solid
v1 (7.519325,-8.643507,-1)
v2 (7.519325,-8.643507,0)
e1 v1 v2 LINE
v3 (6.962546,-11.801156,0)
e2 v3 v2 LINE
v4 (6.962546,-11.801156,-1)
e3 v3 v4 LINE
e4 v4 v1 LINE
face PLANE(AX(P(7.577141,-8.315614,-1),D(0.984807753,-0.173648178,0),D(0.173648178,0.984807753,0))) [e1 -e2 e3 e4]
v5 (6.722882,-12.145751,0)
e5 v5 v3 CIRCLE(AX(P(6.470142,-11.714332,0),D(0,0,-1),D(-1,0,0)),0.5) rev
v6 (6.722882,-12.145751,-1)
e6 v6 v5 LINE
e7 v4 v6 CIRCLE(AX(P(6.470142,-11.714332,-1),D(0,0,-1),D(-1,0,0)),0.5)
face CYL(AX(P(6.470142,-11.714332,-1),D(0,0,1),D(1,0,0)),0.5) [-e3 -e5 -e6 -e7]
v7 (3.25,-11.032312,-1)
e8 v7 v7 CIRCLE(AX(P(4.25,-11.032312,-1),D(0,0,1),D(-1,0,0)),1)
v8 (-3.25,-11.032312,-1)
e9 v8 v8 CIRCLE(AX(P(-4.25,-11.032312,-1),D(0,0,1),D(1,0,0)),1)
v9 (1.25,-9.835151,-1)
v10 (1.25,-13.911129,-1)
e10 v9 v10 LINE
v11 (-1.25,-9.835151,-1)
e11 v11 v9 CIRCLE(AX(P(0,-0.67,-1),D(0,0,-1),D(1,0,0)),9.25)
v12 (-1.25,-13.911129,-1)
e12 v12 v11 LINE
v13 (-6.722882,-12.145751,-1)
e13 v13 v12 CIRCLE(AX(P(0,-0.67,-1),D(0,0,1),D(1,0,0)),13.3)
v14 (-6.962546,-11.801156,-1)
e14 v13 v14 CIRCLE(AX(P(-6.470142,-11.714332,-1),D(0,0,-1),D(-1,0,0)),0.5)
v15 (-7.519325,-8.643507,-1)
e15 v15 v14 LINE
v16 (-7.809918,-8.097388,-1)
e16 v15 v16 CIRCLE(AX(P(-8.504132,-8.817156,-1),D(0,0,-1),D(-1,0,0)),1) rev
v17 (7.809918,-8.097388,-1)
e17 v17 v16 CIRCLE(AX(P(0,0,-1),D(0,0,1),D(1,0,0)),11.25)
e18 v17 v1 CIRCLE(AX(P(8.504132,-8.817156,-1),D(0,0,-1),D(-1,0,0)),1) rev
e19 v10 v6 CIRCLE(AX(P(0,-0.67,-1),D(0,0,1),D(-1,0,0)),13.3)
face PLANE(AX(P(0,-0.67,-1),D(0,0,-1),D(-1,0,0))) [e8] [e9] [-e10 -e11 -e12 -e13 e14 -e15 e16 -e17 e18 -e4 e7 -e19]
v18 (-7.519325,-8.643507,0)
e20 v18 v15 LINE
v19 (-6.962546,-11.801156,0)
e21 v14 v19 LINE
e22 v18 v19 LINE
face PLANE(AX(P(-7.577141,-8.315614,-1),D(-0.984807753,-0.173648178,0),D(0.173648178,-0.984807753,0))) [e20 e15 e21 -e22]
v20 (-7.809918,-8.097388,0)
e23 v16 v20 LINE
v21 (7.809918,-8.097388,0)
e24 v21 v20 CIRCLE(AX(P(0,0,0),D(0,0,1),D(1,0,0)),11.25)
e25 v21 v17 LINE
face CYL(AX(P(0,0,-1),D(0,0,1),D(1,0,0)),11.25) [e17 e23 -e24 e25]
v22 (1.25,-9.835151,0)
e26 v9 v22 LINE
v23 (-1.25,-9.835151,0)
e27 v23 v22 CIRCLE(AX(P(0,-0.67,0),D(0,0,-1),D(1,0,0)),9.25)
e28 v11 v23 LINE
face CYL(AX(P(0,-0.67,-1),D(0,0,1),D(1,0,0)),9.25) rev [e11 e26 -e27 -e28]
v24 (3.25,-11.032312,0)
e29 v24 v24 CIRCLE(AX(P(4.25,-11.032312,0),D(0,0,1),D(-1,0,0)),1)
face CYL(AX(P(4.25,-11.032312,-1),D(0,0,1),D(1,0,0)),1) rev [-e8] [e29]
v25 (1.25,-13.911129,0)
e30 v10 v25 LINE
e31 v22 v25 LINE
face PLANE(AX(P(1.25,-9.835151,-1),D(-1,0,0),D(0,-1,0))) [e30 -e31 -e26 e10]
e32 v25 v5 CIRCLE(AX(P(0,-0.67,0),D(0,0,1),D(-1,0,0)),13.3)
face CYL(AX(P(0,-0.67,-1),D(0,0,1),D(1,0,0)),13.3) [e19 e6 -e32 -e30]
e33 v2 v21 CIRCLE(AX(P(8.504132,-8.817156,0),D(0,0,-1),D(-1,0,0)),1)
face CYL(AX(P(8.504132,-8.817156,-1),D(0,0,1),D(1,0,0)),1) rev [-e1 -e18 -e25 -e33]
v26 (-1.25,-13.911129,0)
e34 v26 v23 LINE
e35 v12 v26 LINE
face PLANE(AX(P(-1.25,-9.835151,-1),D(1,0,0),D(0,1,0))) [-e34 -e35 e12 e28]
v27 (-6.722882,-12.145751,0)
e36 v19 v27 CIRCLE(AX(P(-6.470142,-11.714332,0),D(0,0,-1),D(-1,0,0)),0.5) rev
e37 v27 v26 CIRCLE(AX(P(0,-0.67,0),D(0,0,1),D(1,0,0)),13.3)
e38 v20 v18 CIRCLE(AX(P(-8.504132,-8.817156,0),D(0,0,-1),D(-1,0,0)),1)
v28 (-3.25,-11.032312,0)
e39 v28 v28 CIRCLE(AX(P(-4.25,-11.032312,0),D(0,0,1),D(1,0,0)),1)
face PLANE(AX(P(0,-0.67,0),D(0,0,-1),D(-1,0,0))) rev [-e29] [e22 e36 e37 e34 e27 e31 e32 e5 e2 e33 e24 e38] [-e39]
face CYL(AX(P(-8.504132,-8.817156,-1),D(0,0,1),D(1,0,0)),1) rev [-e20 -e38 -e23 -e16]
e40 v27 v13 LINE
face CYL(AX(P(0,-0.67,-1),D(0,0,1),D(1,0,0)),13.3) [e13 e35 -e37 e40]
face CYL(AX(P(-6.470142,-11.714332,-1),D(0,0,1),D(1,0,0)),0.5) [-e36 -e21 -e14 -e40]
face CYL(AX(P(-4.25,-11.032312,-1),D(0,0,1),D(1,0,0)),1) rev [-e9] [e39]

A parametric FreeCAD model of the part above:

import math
import FreeCAD as App
import Part
import Sketcher
from FreeCAD import Vector
Q = App.Units.Quantity


def edges_at(feature, points):
    """Names of the edges that pass closest to the given points."""
    edges = feature.Shape.Edges
    near = lambda p: min(range(len(edges)), key=lambda i: edges[i].distToShape(Part.Vertex(*p))[0])
    return sorted({f"Edge{near(p) + 1}" for p in points})

doc = App.newDocument("Part")
params = doc.addObject("Spreadsheet::Sheet", "Params")
for row, (alias, value) in enumerate([
    ("sketch1_diameter", "2 mm"),
    ("sketch1_radius", "13.3 mm"),
    ("sketch1_radius2", "9.25 mm"),
    ("sketch1_radius3", "11.25 mm"),
    ("pad1_length", "1 mm"),
    ("fillet_radius", "0.5 mm"),
    ("fillet2_radius", "1 mm"),
], start=1):
    params.set(f"A{row}", alias)
    params.set(f"B{row}", "=" + value)
    params.setAlias(f"B{row}", alias)

body = doc.addObject("PartDesign::Body", "Body")

# Sketch on XY plane
sketch1 = body.newObject("Sketcher::SketchObject", "Sketch")
sketch1.AttachmentSupport = (doc.getObject("XY_Plane"), [""])
sketch1.MapMode = "FlatFace"
sketch1.addGeometry(Part.LineSegment(Vector(-1.2, -13.9, 0), Vector(-1.2, -9.8, 0)), False)
sketch1.addGeometry(Part.ArcOfCircle(Part.Circle(Vector(0, -0.7, 0), Vector(0, 0, 1), 9.2), math.radians(-82), math.radians(262)), False)
sketch1.addGeometry(Part.LineSegment(Vector(1.2, -9.8, 0), Vector(1.2, -13.9, 0)), False)
sketch1.addGeometry(Part.ArcOfCircle(Part.Circle(Vector(0, -0.7, 0), Vector(0, 0, 1), 13.3), math.radians(-85), math.radians(-59)), False)
sketch1.addGeometry(Part.LineSegment(Vector(6.9, -12, 0), Vector(7.6, -8.3, 0)), False)
sketch1.addGeometry(Part.ArcOfCircle(Part.Circle(Vector(0, 0, 0), Vector(0, 0, 1), 11.2), math.radians(-48), math.radians(228)), False)
sketch1.addGeometry(Part.LineSegment(Vector(-7.6, -8.3, 0), Vector(-6.9, -12, 0)), False)
sketch1.addGeometry(Part.ArcOfCircle(Part.Circle(Vector(0, -0.7, 0), Vector(0, 0, 1), 13.3), math.radians(-121), math.radians(-95)), False)
sketch1.addGeometry(Part.Circle(Vector(4.2, -11, 0), Vector(0, 0, 1), 1), False)
sketch1.addGeometry(Part.Circle(Vector(-4.2, -11, 0), Vector(0, 0, 1), 1), False)
sketch1.addConstraint(Sketcher.Constraint("Coincident", 0, 2, 1, 2))
sketch1.addConstraint(Sketcher.Constraint("Coincident", 1, 1, 2, 1))
sketch1.addConstraint(Sketcher.Constraint("Coincident", 2, 2, 3, 1))
sketch1.addConstraint(Sketcher.Constraint("Coincident", 3, 2, 4, 1))
sketch1.addConstraint(Sketcher.Constraint("Coincident", 4, 2, 5, 1))
sketch1.addConstraint(Sketcher.Constraint("Coincident", 5, 2, 6, 1))
sketch1.addConstraint(Sketcher.Constraint("Coincident", 6, 2, 7, 1))
sketch1.addConstraint(Sketcher.Constraint("Coincident", 7, 2, 0, 1))
sketch1.addConstraint(Sketcher.Constraint("Vertical", 0))
sketch1.addConstraint(Sketcher.Constraint("Vertical", 2))
sketch1.addConstraint(Sketcher.Constraint("Coincident", 5, 3, -1, 1))
sketch1.addConstraint(Sketcher.Constraint("Coincident", 3, 3, 1, 3))
sketch1.addConstraint(Sketcher.Constraint("Coincident", 7, 3, 1, 3))
sketch1.addConstraint(Sketcher.Constraint("Equal", 3, 7))
sketch1.addConstraint(Sketcher.Constraint("Equal", 8, 9))
sketch1.addConstraint(Sketcher.Constraint("Symmetric", 8, 3, 9, 3, -2))
sketch1.addConstraint(Sketcher.Constraint("Symmetric", 0, 2, 1, 1, -2))
sketch1.addConstraint(Sketcher.Constraint("Horizontal", 4, 2, 5, 2))
sketch1.addConstraint(Sketcher.Constraint("Horizontal", 3, 2, 6, 2))
sketch1.addConstraint(Sketcher.Constraint("Diameter", 8, Q("2 mm")))
sketch1.addConstraint(Sketcher.Constraint("Radius", 3, Q("13.3 mm")))
sketch1.addConstraint(Sketcher.Constraint("Angle", 4, Q("80 deg")))
sketch1.addConstraint(Sketcher.Constraint("Radius", 1, Q("9.25 mm")))
sketch1.addConstraint(Sketcher.Constraint("Radius", 5, Q("11.25 mm")))
sketch1.addConstraint(Sketcher.Constraint("DistanceX", 9, 3, 0, 2, Q("3 mm")))
sketch1.addConstraint(Sketcher.Constraint("DistanceX", 9, 3, 8, 3, Q("8.5 mm")))
sketch1.addConstraint(Sketcher.Constraint("DistanceY", 1, 3, -1, 1, Q("0.67 mm")))
sketch1.addConstraint(Sketcher.Constraint("Distance", 4, Q("3.767861 mm")))
sketch1.addConstraint(Sketcher.Constraint("DistanceY", 8, 3, -1, 1, Q("11.032312 mm")))
sketch1.setExpression("Constraints[19]", "Params.sketch1_diameter")
sketch1.setExpression("Constraints[20]", "Params.sketch1_radius")
sketch1.setExpression("Constraints[22]", "Params.sketch1_radius2")
sketch1.setExpression("Constraints[23]", "Params.sketch1_radius3")
pad1 = body.newObject("PartDesign::Pad", "Pad")
pad1.Profile = sketch1
pad1.setExpression("Length", "Params.pad1_length")
pad1.Reversed = True
doc.recompute()

fillet = body.newObject("PartDesign::Fillet", "Fillet")
fillet.Base = (pad1, edges_at(pad1, [(-6.923, -12.026, -0.5), (6.923, -12.026, -0.5)]))
fillet.setExpression("Radius", "Params.fillet_radius")
doc.recompute()

fillet2 = body.newObject("PartDesign::Fillet", "Fillet001")
fillet2.Base = (fillet, edges_at(fillet, [(-7.577, -8.316, -0.5), (7.577, -8.316, -0.5)]))
fillet2.setExpression("Radius", "Params.fillet2_radius")

doc.recompute()
